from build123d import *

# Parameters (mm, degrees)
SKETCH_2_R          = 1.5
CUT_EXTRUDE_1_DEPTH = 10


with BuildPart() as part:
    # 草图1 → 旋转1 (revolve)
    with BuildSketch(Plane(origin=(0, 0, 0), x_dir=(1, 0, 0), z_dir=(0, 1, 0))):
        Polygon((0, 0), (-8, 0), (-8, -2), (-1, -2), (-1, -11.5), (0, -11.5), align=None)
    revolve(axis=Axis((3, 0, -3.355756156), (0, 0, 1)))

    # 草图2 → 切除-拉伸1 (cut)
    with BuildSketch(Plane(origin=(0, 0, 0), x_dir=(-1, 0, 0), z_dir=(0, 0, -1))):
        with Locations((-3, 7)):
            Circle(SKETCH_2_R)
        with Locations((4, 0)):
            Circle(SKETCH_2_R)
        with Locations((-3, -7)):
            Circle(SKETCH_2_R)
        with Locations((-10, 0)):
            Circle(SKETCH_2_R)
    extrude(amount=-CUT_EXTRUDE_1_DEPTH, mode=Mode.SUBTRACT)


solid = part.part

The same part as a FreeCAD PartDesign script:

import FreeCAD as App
import Part
import Sketcher
from FreeCAD import Vector
Q = App.Units.Quantity


def add_polygon(sketch, points):
    """Adds a closed chain of lines whose ends are joined by coincident constraints."""
    first, n = sketch.GeometryCount, len(points)
    for a, b in zip(points, points[1:] + points[:1]):
        sketch.addGeometry(Part.LineSegment(App.Vector(*a, 0), App.Vector(*b, 0)), False)
    for i in range(n):
        sketch.addConstraint(Sketcher.Constraint("Coincident", first + i, 2, first + (i + 1) % n, 1))

doc = App.newDocument("Part")
body = doc.addObject("PartDesign::Body", "Body")

# Sketch on XZ plane
sketch1 = doc.addObject("Sketcher::SketchObject", "Sketch")
body.addObject(sketch1)
sketch1.AttachmentSupport = (doc.XZ_Plane, [""])
sketch1.MapMode = "FlatFace"
add_polygon(sketch1, [(0, 0), (-8, 0), (-8, 2), (-1, 2), (-1, 11.5), (0, 11.5)])  # lines 0-5
sketch1.addGeometry(Part.LineSegment(Vector(3, 0, 0), Vector(3, 11.5, 0)), True)  # axis
sketch1.addConstraint([
    Sketcher.Constraint("Horizontal", 0),
    Sketcher.Constraint("Vertical", 1),
    Sketcher.Constraint("Horizontal", 2),
    Sketcher.Constraint("Vertical", 3),
    Sketcher.Constraint("Horizontal", 4),
    Sketcher.Constraint("Vertical", 5),
    Sketcher.Constraint("Vertical", 6),
    Sketcher.Constraint("Coincident", 5, 2, -1, 1),
    Sketcher.Constraint("PointOnObject", 6, 1, -1),
    Sketcher.Constraint("Horizontal", 4, 2, 6, 2),
    Sketcher.Constraint("DistanceX", 0, 2, 0, 1, Q("8 mm")),
    Sketcher.Constraint("DistanceX", 2, 1, 2, 2, Q("7 mm")),
    Sketcher.Constraint("DistanceY", 1, 1, 1, 2, Q("2 mm")),
    Sketcher.Constraint("DistanceY", 3, 1, 3, 2, Q("9.5 mm")),
    Sketcher.Constraint("DistanceX", -1, 1, 6, 1, Q("3 mm")),
])
revolution = doc.addObject("PartDesign::Revolution", "Revolution")
body.addObject(revolution)
revolution.Profile = sketch1
revolution.ReferenceAxis = (sketch1, ["Axis0"])
revolution.Angle = 360

# Sketch on XY plane
sketch2 = doc.addObject("Sketcher::SketchObject", "Sketch001")
body.addObject(sketch2)
sketch2.AttachmentSupport = (doc.XY_Plane, [""])
sketch2.MapMode = "FlatFace"
sketch2.addGeometry([
    Part.Circle(Vector(3, 7, 0), Vector(0, 0, 1), 1.5),
    Part.Circle(Vector(-4, 0, 0), Vector(0, 0, 1), 1.5),
    Part.Circle(Vector(3, -7, 0), Vector(0, 0, 1), 1.5),
    Part.Circle(Vector(10, 0, 0), Vector(0, 0, 1), 1.5),
], False)
sketch2.addConstraint([
    Sketcher.Constraint("Equal", 0, 1),
    Sketcher.Constraint("Equal", 1, 2),
    Sketcher.Constraint("Equal", 2, 3),
    Sketcher.Constraint("Symmetric", 0, 3, 2, 3, -1),
    Sketcher.Constraint("PointOnObject", 1, 3, -1),
    Sketcher.Constraint("PointOnObject", 3, 3, -1),
    Sketcher.Constraint("Diameter", 0, Q("3 mm")),
    Sketcher.Constraint("DistanceX", -1, 1, 0, 3, Q("3 mm")),
    Sketcher.Constraint("DistanceY", -1, 1, 0, 3, Q("7 mm")),
    Sketcher.Constraint("DistanceX", 1, 3, -1, 1, Q("4 mm")),
    Sketcher.Constraint("DistanceX", -1, 1, 3, 3, Q("10 mm")),
])
pocket1 = doc.addObject("PartDesign::Pocket", "Pocket")
body.addObject(pocket1)
pocket1.Profile = sketch2
pocket1.Length = 10
pocket1.Reversed = True

doc.recompute()
